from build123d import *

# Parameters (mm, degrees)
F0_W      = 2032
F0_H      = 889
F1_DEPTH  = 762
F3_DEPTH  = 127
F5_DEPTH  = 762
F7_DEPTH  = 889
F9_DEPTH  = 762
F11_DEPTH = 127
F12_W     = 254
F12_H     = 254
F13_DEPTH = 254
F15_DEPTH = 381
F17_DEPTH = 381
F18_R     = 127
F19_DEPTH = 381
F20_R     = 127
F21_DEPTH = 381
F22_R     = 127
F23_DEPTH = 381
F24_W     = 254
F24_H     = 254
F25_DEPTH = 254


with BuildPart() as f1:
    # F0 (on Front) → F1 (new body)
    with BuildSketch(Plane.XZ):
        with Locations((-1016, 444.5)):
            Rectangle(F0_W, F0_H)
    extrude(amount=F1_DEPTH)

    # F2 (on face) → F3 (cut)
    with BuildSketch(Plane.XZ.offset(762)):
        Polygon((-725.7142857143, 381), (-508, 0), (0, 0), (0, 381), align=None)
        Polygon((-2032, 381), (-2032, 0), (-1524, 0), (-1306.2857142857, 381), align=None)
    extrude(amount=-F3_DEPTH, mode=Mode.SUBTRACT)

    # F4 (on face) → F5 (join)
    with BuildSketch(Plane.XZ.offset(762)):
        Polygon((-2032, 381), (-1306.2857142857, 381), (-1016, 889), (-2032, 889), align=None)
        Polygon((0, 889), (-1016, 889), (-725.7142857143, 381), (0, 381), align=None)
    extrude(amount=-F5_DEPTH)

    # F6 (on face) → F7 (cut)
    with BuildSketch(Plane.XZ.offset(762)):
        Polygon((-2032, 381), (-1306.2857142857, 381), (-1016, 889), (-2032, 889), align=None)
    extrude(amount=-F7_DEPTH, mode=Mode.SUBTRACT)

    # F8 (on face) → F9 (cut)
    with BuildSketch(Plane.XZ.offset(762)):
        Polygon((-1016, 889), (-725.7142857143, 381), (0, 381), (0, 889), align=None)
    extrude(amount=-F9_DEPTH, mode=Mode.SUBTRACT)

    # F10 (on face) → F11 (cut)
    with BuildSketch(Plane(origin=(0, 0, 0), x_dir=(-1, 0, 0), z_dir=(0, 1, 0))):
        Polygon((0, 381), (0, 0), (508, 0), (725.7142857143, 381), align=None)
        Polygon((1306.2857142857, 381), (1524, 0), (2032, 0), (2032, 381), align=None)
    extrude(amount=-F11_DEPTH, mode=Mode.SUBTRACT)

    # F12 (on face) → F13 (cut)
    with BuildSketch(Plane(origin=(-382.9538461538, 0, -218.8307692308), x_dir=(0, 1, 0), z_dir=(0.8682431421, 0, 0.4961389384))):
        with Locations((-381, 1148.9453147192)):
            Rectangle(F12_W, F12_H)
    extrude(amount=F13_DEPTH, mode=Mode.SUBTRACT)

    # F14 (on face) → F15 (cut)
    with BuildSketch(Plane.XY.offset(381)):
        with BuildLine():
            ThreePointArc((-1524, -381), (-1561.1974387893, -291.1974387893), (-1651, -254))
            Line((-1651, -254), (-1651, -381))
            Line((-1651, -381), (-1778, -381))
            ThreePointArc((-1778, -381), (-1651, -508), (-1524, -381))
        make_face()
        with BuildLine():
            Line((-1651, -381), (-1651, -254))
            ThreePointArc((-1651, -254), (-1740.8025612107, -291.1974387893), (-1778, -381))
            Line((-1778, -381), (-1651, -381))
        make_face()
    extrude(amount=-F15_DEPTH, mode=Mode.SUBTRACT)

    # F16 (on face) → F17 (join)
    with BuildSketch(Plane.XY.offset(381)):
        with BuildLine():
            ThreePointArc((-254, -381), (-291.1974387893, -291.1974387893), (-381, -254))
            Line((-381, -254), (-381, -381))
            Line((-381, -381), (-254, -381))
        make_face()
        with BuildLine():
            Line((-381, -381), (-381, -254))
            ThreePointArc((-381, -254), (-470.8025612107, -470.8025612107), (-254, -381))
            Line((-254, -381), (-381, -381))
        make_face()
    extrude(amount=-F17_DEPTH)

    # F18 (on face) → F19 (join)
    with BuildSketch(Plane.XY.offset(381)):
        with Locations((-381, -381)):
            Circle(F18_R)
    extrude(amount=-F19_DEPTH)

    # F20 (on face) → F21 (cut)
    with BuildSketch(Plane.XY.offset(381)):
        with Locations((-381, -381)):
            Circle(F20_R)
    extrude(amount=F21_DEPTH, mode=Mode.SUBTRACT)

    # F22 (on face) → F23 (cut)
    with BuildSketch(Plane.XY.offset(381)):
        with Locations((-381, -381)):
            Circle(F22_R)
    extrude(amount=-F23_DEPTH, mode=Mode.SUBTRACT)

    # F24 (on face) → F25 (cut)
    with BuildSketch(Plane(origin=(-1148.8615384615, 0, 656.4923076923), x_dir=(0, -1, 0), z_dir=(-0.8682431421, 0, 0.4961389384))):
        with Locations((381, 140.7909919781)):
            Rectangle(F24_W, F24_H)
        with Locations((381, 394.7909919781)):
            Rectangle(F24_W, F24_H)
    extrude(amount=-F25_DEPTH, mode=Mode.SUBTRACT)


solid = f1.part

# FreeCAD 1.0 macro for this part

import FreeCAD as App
import Part
import Sketcher
from FreeCAD import Vector
Q = App.Units.Quantity


def add_polygon(sketch, points):
    """Adds a closed chain of lines whose ends are joined by coincident constraints."""
    first, n = sketch.GeometryCount, len(points)
    for a, b in zip(points, points[1:] + points[:1]):
        sketch.addGeometry(Part.LineSegment(App.Vector(*a, 0), App.Vector(*b, 0)), False)
    for i in range(n):
        sketch.addConstraint(Sketcher.Constraint("Coincident", first + i, 2, first + (i + 1) % n, 1))

doc = App.newDocument("Part")
body = doc.addObject("PartDesign::Body", "Body")

# Sketch on XZ plane
sketch1 = doc.addObject("Sketcher::SketchObject", "Sketch")
body.addObject(sketch1)
sketch1.AttachmentSupport = (doc.XZ_Plane, [""])
sketch1.MapMode = "FlatFace"
add_polygon(sketch1, [(-2032, 889), (-2032, 0), (0, 0), (0, 889)])  # lines 0-3
sketch1.addConstraint([
    Sketcher.Constraint("Vertical", 0),
    Sketcher.Constraint("Horizontal", 1),
    Sketcher.Constraint("Vertical", 2),
    Sketcher.Constraint("Horizontal", 3),
    Sketcher.Constraint("Coincident", 1, 2, -1, 1),
    Sketcher.Constraint("DistanceX", 1, 1, 1, 2, Q("80 in")),
    Sketcher.Constraint("DistanceY", 0, 2, 0, 1, Q("35 in")),
])
pad1 = doc.addObject("PartDesign::Pad", "Pad")
body.addObject(pad1)
pad1.Profile = sketch1
pad1.Length = Q("30 in")

# Sketch on XZ plane
sketch2 = doc.addObject("Sketcher::SketchObject", "Sketch001")
body.addObject(sketch2)
sketch2.AttachmentSupport = (doc.XZ_Plane, [""])
sketch2.MapMode = "FlatFace"
sketch2.AttachmentOffset = App.Placement(Vector(0, 0, 30 * 25.4), App.Rotation())
add_polygon(sketch2, [(-726, 381), (-508, 0), (0, 0), (0, 381)])  # lines 0-3
add_polygon(sketch2, [(-2032, 381), (-2032, 0), (-1524, 0), (-1306, 381)])  # lines 4-7
sketch2.addConstraint([
    Sketcher.Constraint("Horizontal", 1),
    Sketcher.Constraint("Vertical", 2),
    Sketcher.Constraint("Horizontal", 3),
    Sketcher.Constraint("Vertical", 4),
    Sketcher.Constraint("Horizontal", 5),
    Sketcher.Constraint("Horizontal", 7),
    Sketcher.Constraint("Coincident", 1, 2, -1, 1),
    Sketcher.Constraint("PointOnObject", 4, 2, -1),
    Sketcher.Constraint("Horizontal", 3, 2, 6, 2),
    Sketcher.Constraint("Equal", 1, 5),
    Sketcher.Constraint("Equal", 3, 7),
    Sketcher.Constraint("DistanceX", 1, 1, 1, 2, Q("20 in")),
    Sketcher.Constraint("DistanceY", 2, 1, 2, 2, Q("15 in")),
    Sketcher.Constraint("DistanceX", 4, 2, -1, 1, Q("80 in")),
    Sketcher.Constraint("Distance", 0, 438.817172),
])
pocket1 = doc.addObject("PartDesign::Pocket", "Pocket")
body.addObject(pocket1)
pocket1.Profile = sketch2
pocket1.Length = Q("5 in")

# Sketch on XZ plane
sketch3 = doc.addObject("Sketcher::SketchObject", "Sketch002")
body.addObject(sketch3)
sketch3.AttachmentSupport = (doc.XZ_Plane, [""])
sketch3.MapMode = "FlatFace"
sketch3.AttachmentOffset = App.Placement(Vector(0, 0, 30 * 25.4), App.Rotation())
add_polygon(sketch3, [(-2032, 381), (-1306, 381), (-1016, 889), (-2032, 889)])  # lines 0-3
add_polygon(sketch3, [(0, 889), (-1016, 889), (-726, 381), (0, 381)])  # lines 4-7
sketch3.addConstraint([
    Sketcher.Constraint("Horizontal", 0),
    Sketcher.Constraint("Horizontal", 2),
    Sketcher.Constraint("Vertical", 3),
    Sketcher.Constraint("Horizontal", 4),
    Sketcher.Constraint("Horizontal", 6),
    Sketcher.Constraint("Vertical", 7),
    Sketcher.Constraint("Coincident", 4, 2, 1, 2),
    Sketcher.Constraint("PointOnObject", 6, 2, -2),
    Sketcher.Constraint("Horizontal", 3, 2, 5, 2),
    Sketcher.Constraint("Equal", 2, 4),
    Sketcher.Constraint("Equal", 0, 6),
    Sketcher.Constraint("DistanceX", 2, 2, 2, 1, Q("40 in")),
    Sketcher.Constraint("DistanceY", 3, 2, 3, 1, Q("20 in")),
    Sketcher.Constraint("DistanceY", -1, 1, 0, 2, Q("15 in")),
    Sketcher.Constraint("DistanceX", 0, 1, 0, 2, 725.714286),
])
pad2 = doc.addObject("PartDesign::Pad", "Pad001")
body.addObject(pad2)
pad2.Profile = sketch3
pad2.Length = Q("30 in")
pad2.Reversed = True

# Sketch on XZ plane
sketch4 = doc.addObject("Sketcher::SketchObject", "Sketch003")
body.addObject(sketch4)
sketch4.AttachmentSupport = (doc.XZ_Plane, [""])
sketch4.MapMode = "FlatFace"
sketch4.AttachmentOffset = App.Placement(Vector(0, 0, 30 * 25.4), App.Rotation())
add_polygon(sketch4, [(-2032, 381), (-1306, 381), (-1016, 889), (-2032, 889)])  # lines 0-3
sketch4.addConstraint([
    Sketcher.Constraint("Horizontal", 0),
    Sketcher.Constraint("Horizontal", 2),
    Sketcher.Constraint("Vertical", 3),
    Sketcher.Constraint("DistanceX", 2, 2, 2, 1, Q("40 in")),
    Sketcher.Constraint("DistanceY", 3, 2, 3, 1, Q("20 in")),
    Sketcher.Constraint("DistanceY", -1, 1, 0, 2, Q("15 in")),
    Sketcher.Constraint("DistanceX", 1, 2, -1, 1, Q("40 in")),
    Sketcher.Constraint("DistanceX", 0, 1, 0, 2, 725.714286),
])
pocket2 = doc.addObject("PartDesign::Pocket", "Pocket001")
body.addObject(pocket2)
pocket2.Profile = sketch4
pocket2.Length = Q("35 in")

# Sketch on XZ plane
sketch5 = doc.addObject("Sketcher::SketchObject", "Sketch004")
body.addObject(sketch5)
sketch5.AttachmentSupport = (doc.XZ_Plane, [""])
sketch5.MapMode = "FlatFace"
sketch5.AttachmentOffset = App.Placement(Vector(0, 0, 30 * 25.4), App.Rotation())
add_polygon(sketch5, [(-1016, 889), (-726, 381), (0, 381), (0, 889)])  # lines 0-3
sketch5.addConstraint([
    Sketcher.Constraint("Horizontal", 1),
    Sketcher.Constraint("Vertical", 2),
    Sketcher.Constraint("Horizontal", 3),
    Sketcher.Constraint("PointOnObject", 1, 2, -2),
    Sketcher.Constraint("DistanceX", 3, 2, 3, 1, Q("40 in")),
    Sketcher.Constraint("DistanceY", 2, 1, 2, 2, Q("20 in")),
    Sketcher.Constraint("DistanceY", -1, 1, 0, 2, Q("15 in")),
    Sketcher.Constraint("DistanceX", 1, 1, 1, 2, 725.714286),
])
pocket3 = doc.addObject("PartDesign::Pocket", "Pocket002")
body.addObject(pocket3)
pocket3.Profile = sketch5
pocket3.Length = Q("30 in")

# Sketch on XZ plane
sketch6 = doc.addObject("Sketcher::SketchObject", "Sketch005")
body.addObject(sketch6)
sketch6.AttachmentSupport = (doc.XZ_Plane, [""])
sketch6.MapMode = "FlatFace"
add_polygon(sketch6, [(0, 381), (0, 0), (-508, 0), (-726, 381)])  # lines 0-3
add_polygon(sketch6, [(-1306, 381), (-1524, 0), (-2032, 0), (-2032, 381)])  # lines 4-7
sketch6.addConstraint([
    Sketcher.Constraint("Vertical", 0),
    Sketcher.Constraint("Horizontal", 1),
    Sketcher.Constraint("Horizontal", 3),
    Sketcher.Constraint("Horizontal", 5),
    Sketcher.Constraint("Vertical", 6),
    Sketcher.Constraint("Horizontal", 7),
    Sketcher.Constraint("Coincident", 0, 2, -1, 1),
    Sketcher.Constraint("PointOnObject", 4, 2, -1),
    Sketcher.Constraint("Horizontal", 3, 2, 6, 2),
    Sketcher.Constraint("Equal", 1, 5),
    Sketcher.Constraint("Equal", 3, 7),
    Sketcher.Constraint("DistanceX", 1, 2, 1, 1, Q("20 in")),
    Sketcher.Constraint("DistanceY", 0, 2, 0, 1, Q("15 in")),
    Sketcher.Constraint("DistanceX", 4, 2, -1, 1, Q("60 in")),
    Sketcher.Constraint("Distance", 2, 438.817172),
])
pocket4 = doc.addObject("PartDesign::Pocket", "Pocket003")
body.addObject(pocket4)
pocket4.Profile = sketch6
pocket4.Length = Q("5 in")
pocket4.Reversed = True

# Sketch on an angled plane
sketch7 = doc.addObject("Sketcher::SketchObject", "Sketch006")
body.addObject(sketch7)
sketch7.Placement = App.Placement(Vector(-382.953846, 0, -218.830769), App.Rotation(Vector(0, 1, 0), Vector(-0.496138938, 0, 0.868243142), Vector(0.868243142, 0, 0.496138938), "ZXY"))
add_polygon(sketch7, [(-508, 1276), (-508, 1022), (-254, 1022), (-254, 1276)])  # lines 0-3
sketch7.addConstraint([
    Sketcher.Constraint("Vertical", 0),
    Sketcher.Constraint("Horizontal", 1),
    Sketcher.Constraint("Vertical", 2),
    Sketcher.Constraint("Horizontal", 3),
    Sketcher.Constraint("Equal", 3, 0),
    Sketcher.Constraint("DistanceX", 1, 1, 1, 2, Q("10 in")),
    Sketcher.Constraint("DistanceX", 0, 2, -1, 1, Q("20 in")),
    Sketcher.Constraint("DistanceY", -1, 1, 0, 2, 1021.945314),
])
pocket5 = doc.addObject("PartDesign::Pocket", "Pocket004")
body.addObject(pocket5)
pocket5.Profile = sketch7
pocket5.Length = Q("10 in")
pocket5.Reversed = True

# Sketch on XY plane
sketch8 = doc.addObject("Sketcher::SketchObject", "Sketch007")
body.addObject(sketch8)
sketch8.AttachmentSupport = (doc.XY_Plane, [""])
sketch8.MapMode = "FlatFace"
sketch8.AttachmentOffset = App.Placement(Vector(0, 0, 15 * 25.4), App.Rotation())
sketch8.addGeometry(Part.Circle(Vector(-1651, -381, 0), Vector(0, 0, 1), 127), False)
sketch8.addConstraint([
    Sketcher.Constraint("Diameter", 0, Q("10 in")),
    Sketcher.Constraint("DistanceX", 0, 3, -1, 1, Q("65 in")),
    Sketcher.Constraint("DistanceY", 0, 3, -1, 1, Q("15 in")),
])
pocket6 = doc.addObject("PartDesign::Pocket", "Pocket005")
body.addObject(pocket6)
pocket6.Profile = sketch8
pocket6.Length = Q("15 in")

# Sketch on XY plane
sketch9 = doc.addObject("Sketcher::SketchObject", "Sketch008")
body.addObject(sketch9)
sketch9.AttachmentSupport = (doc.XY_Plane, [""])
sketch9.MapMode = "FlatFace"
sketch9.AttachmentOffset = App.Placement(Vector(0, 0, 15 * 25.4), App.Rotation())
sketch9.addGeometry(Part.Circle(Vector(-381, -381, 0), Vector(0, 0, 1), 127), False)
sketch9.addConstraint([
    Sketcher.Constraint("Diameter", 0, Q("10 in")),
    Sketcher.Constraint("DistanceX", 0, 3, -1, 1, Q("15 in")),
    Sketcher.Constraint("DistanceY", 0, 3, -1, 1, Q("15 in")),
])
pad3 = doc.addObject("PartDesign::Pad", "Pad002")
body.addObject(pad3)
pad3.Profile = sketch9
pad3.Length = Q("15 in")
pad3.Reversed = True

# Sketch on XY plane
sketch10 = doc.addObject("Sketcher::SketchObject", "Sketch009")
body.addObject(sketch10)
sketch10.AttachmentSupport = (doc.XY_Plane, [""])
sketch10.MapMode = "FlatFace"
sketch10.AttachmentOffset = App.Placement(Vector(0, 0, 15 * 25.4), App.Rotation())
sketch10.addGeometry(Part.Circle(Vector(-381, -381, 0), Vector(0, 0, 1), 127), False)
sketch10.addConstraint([
    Sketcher.Constraint("Diameter", 0, Q("10 in")),
    Sketcher.Constraint("DistanceX", 0, 3, -1, 1, Q("15 in")),
    Sketcher.Constraint("DistanceY", 0, 3, -1, 1, Q("15 in")),
])
pad4 = doc.addObject("PartDesign::Pad", "Pad003")
body.addObject(pad4)
pad4.Profile = sketch10
pad4.Length = Q("15 in")
pad4.Reversed = True

# Sketch on XY plane
sketch11 = doc.addObject("Sketcher::SketchObject", "Sketch010")
body.addObject(sketch11)
sketch11.AttachmentSupport = (doc.XY_Plane, [""])
sketch11.MapMode = "FlatFace"
sketch11.AttachmentOffset = App.Placement(Vector(0, 0, 15 * 25.4), App.Rotation())
sketch11.addGeometry(Part.Circle(Vector(-381, -381, 0), Vector(0, 0, 1), 127), False)
sketch11.addConstraint([
    Sketcher.Constraint("Diameter", 0, Q("10 in")),
    Sketcher.Constraint("DistanceX", 0, 3, -1, 1, Q("15 in")),
    Sketcher.Constraint("DistanceY", 0, 3, -1, 1, Q("15 in")),
])
pocket7 = doc.addObject("PartDesign::Pocket", "Pocket006")
body.addObject(pocket7)
pocket7.Profile = sketch11
pocket7.Length = Q("15 in")
pocket7.Reversed = True

# Sketch on XY plane
sketch12 = doc.addObject("Sketcher::SketchObject", "Sketch011")
body.addObject(sketch12)
sketch12.AttachmentSupport = (doc.XY_Plane, [""])
sketch12.MapMode = "FlatFace"
sketch12.AttachmentOffset = App.Placement(Vector(0, 0, 15 * 25.4), App.Rotation())
sketch12.addGeometry(Part.Circle(Vector(-381, -381, 0), Vector(0, 0, 1), 127), False)
sketch12.addConstraint([
    Sketcher.Constraint("Diameter", 0, Q("10 in")),
    Sketcher.Constraint("DistanceX", 0, 3, -1, 1, Q("15 in")),
    Sketcher.Constraint("DistanceY", 0, 3, -1, 1, Q("15 in")),
])
pocket8 = doc.addObject("PartDesign::Pocket", "Pocket007")
body.addObject(pocket8)
pocket8.Profile = sketch12
pocket8.Length = Q("15 in")

# Sketch on an angled plane
sketch13 = doc.addObject("Sketcher::SketchObject", "Sketch012")
body.addObject(sketch13)
sketch13.Placement = App.Placement(Vector(-1148.861538, 0, 656.492308), App.Rotation(Vector(0, -1, 0), Vector(0.496138938, 0, 0.868243142), Vector(-0.868243142, 0, 0.496138938), "ZXY"))
add_polygon(sketch13, [(254, 14), (508, 14), (508, 522), (254, 522)])  # lines 0-3
sketch13.addConstraint([
    Sketcher.Constraint("Horizontal", 0),
    Sketcher.Constraint("Vertical", 1),
    Sketcher.Constraint("Horizontal", 2),
    Sketcher.Constraint("Vertical", 3),
    Sketcher.Constraint("DistanceX", 0, 1, 0, 2, Q("10 in")),
    Sketcher.Constraint("DistanceY", 1, 1, 1, 2, Q("20 in")),
    Sketcher.Constraint("DistanceX", -1, 1, 0, 2, Q("20 in")),
    Sketcher.Constraint("DistanceY", -1, 1, 0, 2, 13.790992),
])
pocket9 = doc.addObject("PartDesign::Pocket", "Pocket008")
body.addObject(pocket9)
pocket9.Profile = sketch13
pocket9.Length = Q("10 in")

doc.recompute()
